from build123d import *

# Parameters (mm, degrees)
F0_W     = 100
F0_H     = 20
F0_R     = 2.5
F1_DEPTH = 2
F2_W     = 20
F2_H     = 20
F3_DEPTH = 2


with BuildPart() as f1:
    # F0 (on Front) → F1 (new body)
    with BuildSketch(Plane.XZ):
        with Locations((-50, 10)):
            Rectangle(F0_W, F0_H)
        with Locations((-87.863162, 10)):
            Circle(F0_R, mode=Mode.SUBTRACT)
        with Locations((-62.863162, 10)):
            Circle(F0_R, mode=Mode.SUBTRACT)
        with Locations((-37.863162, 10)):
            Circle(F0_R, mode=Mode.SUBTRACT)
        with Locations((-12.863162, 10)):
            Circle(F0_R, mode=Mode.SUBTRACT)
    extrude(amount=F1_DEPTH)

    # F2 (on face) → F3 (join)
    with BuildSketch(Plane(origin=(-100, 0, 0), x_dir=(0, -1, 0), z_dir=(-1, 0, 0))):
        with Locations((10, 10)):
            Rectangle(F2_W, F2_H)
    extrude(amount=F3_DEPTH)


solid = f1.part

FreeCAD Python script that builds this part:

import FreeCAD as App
import Part
import Sketcher

V = App.Vector
Q = App.Units.Quantity

doc = App.newDocument("Part")
body = doc.addObject("PartDesign::Body", "Body")

# Sketch on XZ plane
sketch1 = body.newObject("Sketcher::SketchObject", "Sketch")
sketch1.AttachmentSupport = (doc.getObject("XZ_Plane"), [""])
sketch1.MapMode = "FlatFace"
sketch1.addGeometry(Part.LineSegment(V(-100, 20, 0), V(-100, 0, 0)), False)
sketch1.addGeometry(Part.LineSegment(V(-100, 0, 0), V(0, 0, 0)), False)
sketch1.addGeometry(Part.LineSegment(V(0, 0, 0), V(0, 20, 0)), False)
sketch1.addGeometry(Part.LineSegment(V(0, 20, 0), V(-100, 20, 0)), False)
sketch1.addGeometry(Part.Circle(V(-87.863162, 10, 0), V(0, 0, 1), 2.5), False)
sketch1.addGeometry(Part.Circle(V(-62.863162, 10, 0), V(0, 0, 1), 2.5), False)
sketch1.addGeometry(Part.Circle(V(-37.863162, 10, 0), V(0, 0, 1), 2.5), False)
sketch1.addGeometry(Part.Circle(V(-12.863162, 10, 0), V(0, 0, 1), 2.5), False)
sketch1.addConstraint(Sketcher.Constraint("Coincident", 0, 2, 1, 1))
sketch1.addConstraint(Sketcher.Constraint("Coincident", 1, 2, 2, 1))
sketch1.addConstraint(Sketcher.Constraint("Coincident", 2, 2, 3, 1))
sketch1.addConstraint(Sketcher.Constraint("Coincident", 3, 2, 0, 1))
sketch1.addConstraint(Sketcher.Constraint("Vertical", 0))
sketch1.addConstraint(Sketcher.Constraint("Horizontal", 1))
sketch1.addConstraint(Sketcher.Constraint("Vertical", 2))
sketch1.addConstraint(Sketcher.Constraint("Horizontal", 3))
sketch1.addConstraint(Sketcher.Constraint("Coincident", 1, 2, -1, 1))
sketch1.addConstraint(Sketcher.Constraint("Equal", 4, 5))
sketch1.addConstraint(Sketcher.Constraint("Equal", 5, 6))
sketch1.addConstraint(Sketcher.Constraint("Equal", 6, 7))
sketch1.addConstraint(Sketcher.Constraint("Horizontal", 4, 3, 5, 3))
sketch1.addConstraint(Sketcher.Constraint("Horizontal", 5, 3, 6, 3))
sketch1.addConstraint(Sketcher.Constraint("Horizontal", 6, 3, 7, 3))
sketch1.addConstraint(Sketcher.Constraint("Diameter", 4, Q("5 mm")))
sketch1.addConstraint(Sketcher.Constraint("DistanceX", 1, 1, 1, 2, Q("100 mm")))
sketch1.addConstraint(Sketcher.Constraint("DistanceY", 0, 2, 0, 1, Q("20 mm")))
sketch1.addConstraint(Sketcher.Constraint("DistanceY", -1, 1, 4, 3, Q("10 mm")))
sketch1.addConstraint(Sketcher.Constraint("DistanceX", 4, 3, 5, 3, Q("25 mm")))
sketch1.addConstraint(Sketcher.Constraint("DistanceX", 5, 3, 6, 3, Q("25 mm")))
sketch1.addConstraint(Sketcher.Constraint("DistanceX", 6, 3, 7, 3, Q("25 mm")))
sketch1.addConstraint(Sketcher.Constraint("DistanceX", 4, 3, -1, 1, Q("87.863162 mm")))
pad1 = body.newObject("PartDesign::Pad", "Pad")
pad1.Profile = sketch1
pad1.Length = 2

# Sketch on YZ plane
sketch2 = body.newObject("Sketcher::SketchObject", "Sketch001")
sketch2.AttachmentSupport = (doc.getObject("YZ_Plane"), [""])
sketch2.MapMode = "FlatFace"
sketch2.AttachmentOffset = App.Placement(V(0, 0, -100), App.Rotation())
sketch2.addGeometry(Part.LineSegment(V(0, 20, 0), V(0, 0, 0)), False)
sketch2.addGeometry(Part.LineSegment(V(0, 0, 0), V(-20, 0, 0)), False)
sketch2.addGeometry(Part.LineSegment(V(-20, 0, 0), V(-20, 20, 0)), False)
sketch2.addGeometry(Part.LineSegment(V(-20, 20, 0), V(0, 20, 0)), False)
sketch2.addConstraint(Sketcher.Constraint("Coincident", 0, 2, 1, 1))
sketch2.addConstraint(Sketcher.Constraint("Coincident", 1, 2, 2, 1))
sketch2.addConstraint(Sketcher.Constraint("Coincident", 2, 2, 3, 1))
sketch2.addConstraint(Sketcher.Constraint("Coincident", 3, 2, 0, 1))
sketch2.addConstraint(Sketcher.Constraint("Vertical", 0))
sketch2.addConstraint(Sketcher.Constraint("Horizontal", 1))
sketch2.addConstraint(Sketcher.Constraint("Vertical", 2))
sketch2.addConstraint(Sketcher.Constraint("Horizontal", 3))
sketch2.addConstraint(Sketcher.Constraint("Coincident", 0, 2, -1, 1))
sketch2.addConstraint(Sketcher.Constraint("Equal", 3, 0))
sketch2.addConstraint(Sketcher.Constraint("DistanceX", 1, 2, 1, 1, Q("20 mm")))
pad2 = body.newObject("PartDesign::Pad", "Pad001")
pad2.Profile = sketch2
pad2.Length = 2
pad2.Reversed = True

doc.recompute()
